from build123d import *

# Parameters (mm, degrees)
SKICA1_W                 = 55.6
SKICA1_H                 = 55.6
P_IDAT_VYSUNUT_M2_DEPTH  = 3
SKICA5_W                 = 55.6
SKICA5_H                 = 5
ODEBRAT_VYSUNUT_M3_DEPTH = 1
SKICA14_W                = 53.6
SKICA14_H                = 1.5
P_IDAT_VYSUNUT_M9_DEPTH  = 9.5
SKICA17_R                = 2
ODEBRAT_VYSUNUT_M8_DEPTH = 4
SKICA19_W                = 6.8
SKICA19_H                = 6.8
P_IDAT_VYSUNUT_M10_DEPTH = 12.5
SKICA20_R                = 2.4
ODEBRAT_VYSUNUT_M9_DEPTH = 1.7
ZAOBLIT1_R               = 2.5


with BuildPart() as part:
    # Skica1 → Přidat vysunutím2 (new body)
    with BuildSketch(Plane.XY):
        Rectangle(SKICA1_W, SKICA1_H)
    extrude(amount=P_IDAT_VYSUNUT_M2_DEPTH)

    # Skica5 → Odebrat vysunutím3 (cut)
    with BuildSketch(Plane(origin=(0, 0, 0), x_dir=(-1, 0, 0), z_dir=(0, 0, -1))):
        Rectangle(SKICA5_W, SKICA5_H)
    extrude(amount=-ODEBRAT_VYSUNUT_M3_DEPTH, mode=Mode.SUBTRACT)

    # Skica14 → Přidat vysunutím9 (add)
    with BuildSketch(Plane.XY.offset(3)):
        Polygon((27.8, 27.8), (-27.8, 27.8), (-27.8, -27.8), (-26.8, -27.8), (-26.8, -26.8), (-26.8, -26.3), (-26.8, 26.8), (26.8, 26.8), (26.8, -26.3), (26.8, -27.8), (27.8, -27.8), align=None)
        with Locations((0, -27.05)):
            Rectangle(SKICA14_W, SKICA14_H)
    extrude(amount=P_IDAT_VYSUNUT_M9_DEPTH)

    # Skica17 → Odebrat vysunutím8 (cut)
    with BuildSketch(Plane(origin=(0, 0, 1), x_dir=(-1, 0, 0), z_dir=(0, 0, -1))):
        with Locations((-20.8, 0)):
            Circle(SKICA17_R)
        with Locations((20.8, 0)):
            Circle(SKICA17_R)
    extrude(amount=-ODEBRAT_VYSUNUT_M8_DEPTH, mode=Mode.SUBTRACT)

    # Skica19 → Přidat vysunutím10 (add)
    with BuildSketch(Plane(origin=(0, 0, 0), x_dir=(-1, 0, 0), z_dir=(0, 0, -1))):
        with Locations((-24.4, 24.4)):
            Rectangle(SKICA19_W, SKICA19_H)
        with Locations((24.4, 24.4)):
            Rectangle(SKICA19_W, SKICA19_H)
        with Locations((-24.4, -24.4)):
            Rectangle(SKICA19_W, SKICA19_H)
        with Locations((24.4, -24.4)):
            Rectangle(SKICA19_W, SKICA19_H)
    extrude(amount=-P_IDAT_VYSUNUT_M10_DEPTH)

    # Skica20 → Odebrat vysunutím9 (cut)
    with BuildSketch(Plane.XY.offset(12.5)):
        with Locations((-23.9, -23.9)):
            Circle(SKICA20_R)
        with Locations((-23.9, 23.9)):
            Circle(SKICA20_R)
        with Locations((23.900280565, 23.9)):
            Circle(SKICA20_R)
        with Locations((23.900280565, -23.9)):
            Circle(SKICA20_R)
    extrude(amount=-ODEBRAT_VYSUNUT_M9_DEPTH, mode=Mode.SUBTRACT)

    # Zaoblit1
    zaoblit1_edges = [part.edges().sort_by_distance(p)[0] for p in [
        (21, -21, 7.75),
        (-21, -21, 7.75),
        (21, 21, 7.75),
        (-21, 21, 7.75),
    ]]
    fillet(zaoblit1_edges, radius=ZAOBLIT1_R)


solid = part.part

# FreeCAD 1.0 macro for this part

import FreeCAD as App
import Part
import Sketcher
from FreeCAD import Vector
Q = App.Units.Quantity


def edges_at(feature, points):
    """Names of the edges that pass closest to the given points."""
    edges = feature.Shape.Edges
    near = lambda p: min(range(len(edges)), key=lambda i: edges[i].distToShape(Part.Vertex(*p))[0])
    return sorted({f"Edge{near(p) + 1}" for p in points})

doc = App.newDocument("Part")
body = doc.addObject("PartDesign::Body", "Body")

sketch1 = doc.addObject("Sketcher::SketchObject", "Sketch")
body.addObject(sketch1)
sketch1.AttachmentSupport = (doc.XY_Plane, [""])
sketch1.MapMode = "FlatFace"
sketch1.addGeometry([
    Part.LineSegment(Vector(-27.8, 27.8, 0), Vector(-27.8, -27.8, 0)),
    Part.LineSegment(Vector(-27.8, -27.8, 0), Vector(27.8, -27.8, 0)),
    Part.LineSegment(Vector(27.8, -27.8, 0), Vector(27.8, 27.8, 0)),
    Part.LineSegment(Vector(27.8, 27.8, 0), Vector(-27.8, 27.8, 0)),
], False)
sketch1.addConstraint([
    Sketcher.Constraint("Coincident", 0, 2, 1, 1),
    Sketcher.Constraint("Coincident", 1, 2, 2, 1),
    Sketcher.Constraint("Coincident", 2, 2, 3, 1),
    Sketcher.Constraint("Coincident", 3, 2, 0, 1),
    Sketcher.Constraint("Vertical", 0),
    Sketcher.Constraint("Horizontal", 1),
    Sketcher.Constraint("Vertical", 2),
    Sketcher.Constraint("Horizontal", 3),
    Sketcher.Constraint("Symmetric", 0, 2, 2, 2, -1, 1),
    Sketcher.Constraint("Equal", 3, 0),
    Sketcher.Constraint("DistanceX", 1, 1, 1, 2, Q("55.6 mm")),
])
pad1 = doc.addObject("PartDesign::Pad", "Pad")
body.addObject(pad1)
pad1.Profile = sketch1
pad1.Length = 3

sketch2 = doc.addObject("Sketcher::SketchObject", "Sketch001")
body.addObject(sketch2)
sketch2.AttachmentSupport = (doc.XY_Plane, [""])
sketch2.MapMode = "FlatFace"
sketch2.addGeometry([
    Part.LineSegment(Vector(27.8, 2.5, 0), Vector(27.8, -2.5, 0)),
    Part.LineSegment(Vector(27.8, -2.5, 0), Vector(-27.8, -2.5, 0)),
    Part.LineSegment(Vector(-27.8, -2.5, 0), Vector(-27.8, 2.5, 0)),
    Part.LineSegment(Vector(-27.8, 2.5, 0), Vector(27.8, 2.5, 0)),
], False)
sketch2.addConstraint([
    Sketcher.Constraint("Coincident", 0, 2, 1, 1),
    Sketcher.Constraint("Coincident", 1, 2, 2, 1),
    Sketcher.Constraint("Coincident", 2, 2, 3, 1),
    Sketcher.Constraint("Coincident", 3, 2, 0, 1),
    Sketcher.Constraint("Vertical", 0),
    Sketcher.Constraint("Horizontal", 1),
    Sketcher.Constraint("Vertical", 2),
    Sketcher.Constraint("Horizontal", 3),
    Sketcher.Constraint("Symmetric", 0, 2, 2, 2, -1, 1),
    Sketcher.Constraint("DistanceY", 0, 2, 0, 1, Q("5 mm")),
    Sketcher.Constraint("DistanceX", 1, 2, 1, 1, Q("55.6 mm")),
])
pocket1 = doc.addObject("PartDesign::Pocket", "Pocket")
body.addObject(pocket1)
pocket1.Profile = sketch2
pocket1.Length = 1
pocket1.Reversed = True

sketch3 = doc.addObject("Sketcher::SketchObject", "Sketch002")
body.addObject(sketch3)
sketch3.AttachmentSupport = (doc.XY_Plane, [""])
sketch3.MapMode = "FlatFace"
sketch3.AttachmentOffset = App.Placement(Vector(0, 0, 3), App.Rotation())
sketch3.addGeometry([
    Part.LineSegment(Vector(27.8, 27.8, 0), Vector(-27.8, 27.8, 0)),
    Part.LineSegment(Vector(-27.8, 27.8, 0), Vector(-27.8, -27.8, 0)),
    Part.LineSegment(Vector(-27.8, -27.8, 0), Vector(27.8, -27.8, 0)),
    Part.LineSegment(Vector(27.8, -27.8, 0), Vector(27.8, 27.8, 0)),
    Part.LineSegment(Vector(-26.8, -26.3, 0), Vector(-26.8, 26.8, 0)),
    Part.LineSegment(Vector(-26.8, 26.8, 0), Vector(26.8, 26.8, 0)),
    Part.LineSegment(Vector(26.8, 26.8, 0), Vector(26.8, -26.3, 0)),
    Part.LineSegment(Vector(26.8, -26.3, 0), Vector(-26.8, -26.3, 0)),
], False)
sketch3.addConstraint([
    Sketcher.Constraint("Coincident", 0, 2, 1, 1),
    Sketcher.Constraint("Coincident", 1, 2, 2, 1),
    Sketcher.Constraint("Coincident", 2, 2, 3, 1),
    Sketcher.Constraint("Coincident", 3, 2, 0, 1),
    Sketcher.Constraint("Coincident", 4, 2, 5, 1),
    Sketcher.Constraint("Coincident", 5, 2, 6, 1),
    Sketcher.Constraint("Coincident", 6, 2, 7, 1),
    Sketcher.Constraint("Coincident", 7, 2, 4, 1),
    Sketcher.Constraint("Horizontal", 0),
    Sketcher.Constraint("Vertical", 1),
    Sketcher.Constraint("Horizontal", 2),
    Sketcher.Constraint("Vertical", 3),
    Sketcher.Constraint("Vertical", 4),
    Sketcher.Constraint("Horizontal", 5),
    Sketcher.Constraint("Vertical", 6),
    Sketcher.Constraint("Horizontal", 7),
    Sketcher.Constraint("Symmetric", 0, 2, 2, 2, -1, 1),
    Sketcher.Constraint("Equal", 2, 1),
    Sketcher.Constraint("DistanceX", 0, 2, 0, 1, Q("55.6 mm")),
    Sketcher.Constraint("DistanceX", 5, 1, 5, 2, Q("53.6 mm")),
    Sketcher.Constraint("DistanceY", 4, 1, 4, 2, Q("53.1 mm")),
    Sketcher.Constraint("DistanceX", 0, 2, 4, 2, Q("1 mm")),
    Sketcher.Constraint("DistanceY", 4, 2, 0, 2, Q("1 mm")),
])
pad2 = doc.addObject("PartDesign::Pad", "Pad001")
body.addObject(pad2)
pad2.Profile = sketch3
pad2.Length = 9.5

sketch4 = doc.addObject("Sketcher::SketchObject", "Sketch003")
body.addObject(sketch4)
sketch4.AttachmentSupport = (doc.XY_Plane, [""])
sketch4.MapMode = "FlatFace"
sketch4.AttachmentOffset = App.Placement(Vector(0, 0, 1), App.Rotation())
sketch4.addGeometry([
    Part.Circle(Vector(20.8, 0, 0), Vector(0, 0, 1), 2),
    Part.Circle(Vector(-20.8, 0, 0), Vector(0, 0, 1), 2),
], False)
sketch4.addConstraint([
    Sketcher.Constraint("Equal", 0, 1),
    Sketcher.Constraint("Symmetric", 0, 3, 1, 3, -1, 1),
    Sketcher.Constraint("PointOnObject", 0, 3, -1),
    Sketcher.Constraint("Diameter", 0, Q("4 mm")),
    Sketcher.Constraint("DistanceX", -1, 1, 0, 3, Q("20.8 mm")),
])
pocket2 = doc.addObject("PartDesign::Pocket", "Pocket001")
body.addObject(pocket2)
pocket2.Profile = sketch4
pocket2.Length = 4
pocket2.Reversed = True

sketch5 = doc.addObject("Sketcher::SketchObject", "Sketch004")
body.addObject(sketch5)
sketch5.AttachmentSupport = (doc.XY_Plane, [""])
sketch5.MapMode = "FlatFace"
sketch5.addGeometry([
    Part.LineSegment(Vector(27.8, 27.8, 0), Vector(27.8, 21, 0)),
    Part.LineSegment(Vector(27.8, 21, 0), Vector(21, 21, 0)),
    Part.LineSegment(Vector(21, 21, 0), Vector(21, 27.8, 0)),
    Part.LineSegment(Vector(21, 27.8, 0), Vector(27.8, 27.8, 0)),
    Part.LineSegment(Vector(-21, 27.8, 0), Vector(-21, 21, 0)),
    Part.LineSegment(Vector(-21, 21, 0), Vector(-27.8, 21, 0)),
    Part.LineSegment(Vector(-27.8, 21, 0), Vector(-27.8, 27.8, 0)),
    Part.LineSegment(Vector(-27.8, 27.8, 0), Vector(-21, 27.8, 0)),
    Part.LineSegment(Vector(27.8, -21, 0), Vector(27.8, -27.8, 0)),
    Part.LineSegment(Vector(27.8, -27.8, 0), Vector(21, -27.8, 0)),
    Part.LineSegment(Vector(21, -27.8, 0), Vector(21, -21, 0)),
    Part.LineSegment(Vector(21, -21, 0), Vector(27.8, -21, 0)),
    Part.LineSegment(Vector(-21, -21, 0), Vector(-21, -27.8, 0)),
    Part.LineSegment(Vector(-21, -27.8, 0), Vector(-27.8, -27.8, 0)),
    Part.LineSegment(Vector(-27.8, -27.8, 0), Vector(-27.8, -21, 0)),
    Part.LineSegment(Vector(-27.8, -21, 0), Vector(-21, -21, 0)),
], False)
sketch5.addConstraint([
    Sketcher.Constraint("Coincident", 0, 2, 1, 1),
    Sketcher.Constraint("Coincident", 1, 2, 2, 1),
    Sketcher.Constraint("Coincident", 2, 2, 3, 1),
    Sketcher.Constraint("Coincident", 3, 2, 0, 1),
    Sketcher.Constraint("Coincident", 4, 2, 5, 1),
    Sketcher.Constraint("Coincident", 5, 2, 6, 1),
    Sketcher.Constraint("Coincident", 6, 2, 7, 1),
    Sketcher.Constraint("Coincident", 7, 2, 4, 1),
    Sketcher.Constraint("Coincident", 8, 2, 9, 1),
    Sketcher.Constraint("Coincident", 9, 2, 10, 1),
    Sketcher.Constraint("Coincident", 10, 2, 11, 1),
    Sketcher.Constraint("Coincident", 11, 2, 8, 1),
    Sketcher.Constraint("Coincident", 12, 2, 13, 1),
    Sketcher.Constraint("Coincident", 13, 2, 14, 1),
    Sketcher.Constraint("Coincident", 14, 2, 15, 1),
    Sketcher.Constraint("Coincident", 15, 2, 12, 1),
    Sketcher.Constraint("Vertical", 0),
    Sketcher.Constraint("Horizontal", 1),
    Sketcher.Constraint("Vertical", 2),
    Sketcher.Constraint("Horizontal", 3),
    Sketcher.Constraint("Vertical", 4),
    Sketcher.Constraint("Horizontal", 5),
    Sketcher.Constraint("Vertical", 6),
    Sketcher.Constraint("Horizontal", 7),
    Sketcher.Constraint("Vertical", 8),
    Sketcher.Constraint("Horizontal", 9),
    Sketcher.Constraint("Vertical", 10),
    Sketcher.Constraint("Horizontal", 11),
    Sketcher.Constraint("Vertical", 12),
    Sketcher.Constraint("Horizontal", 13),
    Sketcher.Constraint("Vertical", 14),
    Sketcher.Constraint("Horizontal", 15),
    Sketcher.Constraint("Symmetric", 6, 2, 8, 2, -1, 1),
    Sketcher.Constraint("Symmetric", 4, 2, 10, 2, -1, 1),
    Sketcher.Constraint("Symmetric", 2, 2, 12, 2, -1, 1),
    Sketcher.Constraint("Symmetric", 0, 2, 14, 2, -1, 1),
    Sketcher.Constraint("Symmetric", 1, 2, 4, 2, -2),
    Sketcher.Constraint("Symmetric", 3, 2, 6, 2, -2),
    Sketcher.Constraint("Equal", 15, 0),
    Sketcher.Constraint("DistanceX", 1, 2, 1, 1, Q("6.8 mm")),
    Sketcher.Constraint("DistanceY", -1, 1, 0, 2, Q("21 mm")),
    Sketcher.Constraint("DistanceX", -1, 1, 1, 2, Q("21 mm")),
])
pad3 = doc.addObject("PartDesign::Pad", "Pad002")
body.addObject(pad3)
pad3.Profile = sketch5
pad3.Length = 12.5

sketch6 = doc.addObject("Sketcher::SketchObject", "Sketch005")
body.addObject(sketch6)
sketch6.AttachmentSupport = (doc.XY_Plane, [""])
sketch6.MapMode = "FlatFace"
sketch6.AttachmentOffset = App.Placement(Vector(0, 0, 12.5), App.Rotation())
sketch6.addGeometry([
    Part.Circle(Vector(-23.9, -23.9, 0), Vector(0, 0, 1), 2.4),
    Part.Circle(Vector(-23.9, 23.9, 0), Vector(0, 0, 1), 2.4),
    Part.Circle(Vector(23.900281, 23.9, 0), Vector(0, 0, 1), 2.4),
    Part.Circle(Vector(23.900281, -23.9, 0), Vector(0, 0, 1), 2.4),
], False)
sketch6.addConstraint([
    Sketcher.Constraint("Equal", 0, 1),
    Sketcher.Constraint("Equal", 1, 2),
    Sketcher.Constraint("Equal", 2, 3),
    Sketcher.Constraint("Symmetric", 0, 3, 1, 3, -1),
    Sketcher.Constraint("Symmetric", 2, 3, 3, 3, -1),
    Sketcher.Constraint("Horizontal", 1, 3, 2, 3),
    Sketcher.Constraint("Diameter", 0, Q("4.8 mm")),
    Sketcher.Constraint("DistanceX", 0, 3, -1, 1, Q("23.9 mm")),
    Sketcher.Constraint("DistanceY", 0, 3, -1, 1, Q("23.9 mm")),
    Sketcher.Constraint("DistanceX", -1, 1, 2, 3, Q("23.900281 mm")),
])
pocket3 = doc.addObject("PartDesign::Pocket", "Pocket002")
body.addObject(pocket3)
pocket3.Profile = sketch6
pocket3.Length = 1.7
doc.recompute()

fillet = doc.addObject("PartDesign::Fillet", "Fillet")
body.addObject(fillet)
fillet.Base = (pocket3, edges_at(pocket3, [
    (21, -21, 7.75),
    (-21, -21, 7.75),
    (21, 21, 7.75),
    (-21, 21, 7.75),
]))
fillet.Radius = 2.5

doc.recompute()
